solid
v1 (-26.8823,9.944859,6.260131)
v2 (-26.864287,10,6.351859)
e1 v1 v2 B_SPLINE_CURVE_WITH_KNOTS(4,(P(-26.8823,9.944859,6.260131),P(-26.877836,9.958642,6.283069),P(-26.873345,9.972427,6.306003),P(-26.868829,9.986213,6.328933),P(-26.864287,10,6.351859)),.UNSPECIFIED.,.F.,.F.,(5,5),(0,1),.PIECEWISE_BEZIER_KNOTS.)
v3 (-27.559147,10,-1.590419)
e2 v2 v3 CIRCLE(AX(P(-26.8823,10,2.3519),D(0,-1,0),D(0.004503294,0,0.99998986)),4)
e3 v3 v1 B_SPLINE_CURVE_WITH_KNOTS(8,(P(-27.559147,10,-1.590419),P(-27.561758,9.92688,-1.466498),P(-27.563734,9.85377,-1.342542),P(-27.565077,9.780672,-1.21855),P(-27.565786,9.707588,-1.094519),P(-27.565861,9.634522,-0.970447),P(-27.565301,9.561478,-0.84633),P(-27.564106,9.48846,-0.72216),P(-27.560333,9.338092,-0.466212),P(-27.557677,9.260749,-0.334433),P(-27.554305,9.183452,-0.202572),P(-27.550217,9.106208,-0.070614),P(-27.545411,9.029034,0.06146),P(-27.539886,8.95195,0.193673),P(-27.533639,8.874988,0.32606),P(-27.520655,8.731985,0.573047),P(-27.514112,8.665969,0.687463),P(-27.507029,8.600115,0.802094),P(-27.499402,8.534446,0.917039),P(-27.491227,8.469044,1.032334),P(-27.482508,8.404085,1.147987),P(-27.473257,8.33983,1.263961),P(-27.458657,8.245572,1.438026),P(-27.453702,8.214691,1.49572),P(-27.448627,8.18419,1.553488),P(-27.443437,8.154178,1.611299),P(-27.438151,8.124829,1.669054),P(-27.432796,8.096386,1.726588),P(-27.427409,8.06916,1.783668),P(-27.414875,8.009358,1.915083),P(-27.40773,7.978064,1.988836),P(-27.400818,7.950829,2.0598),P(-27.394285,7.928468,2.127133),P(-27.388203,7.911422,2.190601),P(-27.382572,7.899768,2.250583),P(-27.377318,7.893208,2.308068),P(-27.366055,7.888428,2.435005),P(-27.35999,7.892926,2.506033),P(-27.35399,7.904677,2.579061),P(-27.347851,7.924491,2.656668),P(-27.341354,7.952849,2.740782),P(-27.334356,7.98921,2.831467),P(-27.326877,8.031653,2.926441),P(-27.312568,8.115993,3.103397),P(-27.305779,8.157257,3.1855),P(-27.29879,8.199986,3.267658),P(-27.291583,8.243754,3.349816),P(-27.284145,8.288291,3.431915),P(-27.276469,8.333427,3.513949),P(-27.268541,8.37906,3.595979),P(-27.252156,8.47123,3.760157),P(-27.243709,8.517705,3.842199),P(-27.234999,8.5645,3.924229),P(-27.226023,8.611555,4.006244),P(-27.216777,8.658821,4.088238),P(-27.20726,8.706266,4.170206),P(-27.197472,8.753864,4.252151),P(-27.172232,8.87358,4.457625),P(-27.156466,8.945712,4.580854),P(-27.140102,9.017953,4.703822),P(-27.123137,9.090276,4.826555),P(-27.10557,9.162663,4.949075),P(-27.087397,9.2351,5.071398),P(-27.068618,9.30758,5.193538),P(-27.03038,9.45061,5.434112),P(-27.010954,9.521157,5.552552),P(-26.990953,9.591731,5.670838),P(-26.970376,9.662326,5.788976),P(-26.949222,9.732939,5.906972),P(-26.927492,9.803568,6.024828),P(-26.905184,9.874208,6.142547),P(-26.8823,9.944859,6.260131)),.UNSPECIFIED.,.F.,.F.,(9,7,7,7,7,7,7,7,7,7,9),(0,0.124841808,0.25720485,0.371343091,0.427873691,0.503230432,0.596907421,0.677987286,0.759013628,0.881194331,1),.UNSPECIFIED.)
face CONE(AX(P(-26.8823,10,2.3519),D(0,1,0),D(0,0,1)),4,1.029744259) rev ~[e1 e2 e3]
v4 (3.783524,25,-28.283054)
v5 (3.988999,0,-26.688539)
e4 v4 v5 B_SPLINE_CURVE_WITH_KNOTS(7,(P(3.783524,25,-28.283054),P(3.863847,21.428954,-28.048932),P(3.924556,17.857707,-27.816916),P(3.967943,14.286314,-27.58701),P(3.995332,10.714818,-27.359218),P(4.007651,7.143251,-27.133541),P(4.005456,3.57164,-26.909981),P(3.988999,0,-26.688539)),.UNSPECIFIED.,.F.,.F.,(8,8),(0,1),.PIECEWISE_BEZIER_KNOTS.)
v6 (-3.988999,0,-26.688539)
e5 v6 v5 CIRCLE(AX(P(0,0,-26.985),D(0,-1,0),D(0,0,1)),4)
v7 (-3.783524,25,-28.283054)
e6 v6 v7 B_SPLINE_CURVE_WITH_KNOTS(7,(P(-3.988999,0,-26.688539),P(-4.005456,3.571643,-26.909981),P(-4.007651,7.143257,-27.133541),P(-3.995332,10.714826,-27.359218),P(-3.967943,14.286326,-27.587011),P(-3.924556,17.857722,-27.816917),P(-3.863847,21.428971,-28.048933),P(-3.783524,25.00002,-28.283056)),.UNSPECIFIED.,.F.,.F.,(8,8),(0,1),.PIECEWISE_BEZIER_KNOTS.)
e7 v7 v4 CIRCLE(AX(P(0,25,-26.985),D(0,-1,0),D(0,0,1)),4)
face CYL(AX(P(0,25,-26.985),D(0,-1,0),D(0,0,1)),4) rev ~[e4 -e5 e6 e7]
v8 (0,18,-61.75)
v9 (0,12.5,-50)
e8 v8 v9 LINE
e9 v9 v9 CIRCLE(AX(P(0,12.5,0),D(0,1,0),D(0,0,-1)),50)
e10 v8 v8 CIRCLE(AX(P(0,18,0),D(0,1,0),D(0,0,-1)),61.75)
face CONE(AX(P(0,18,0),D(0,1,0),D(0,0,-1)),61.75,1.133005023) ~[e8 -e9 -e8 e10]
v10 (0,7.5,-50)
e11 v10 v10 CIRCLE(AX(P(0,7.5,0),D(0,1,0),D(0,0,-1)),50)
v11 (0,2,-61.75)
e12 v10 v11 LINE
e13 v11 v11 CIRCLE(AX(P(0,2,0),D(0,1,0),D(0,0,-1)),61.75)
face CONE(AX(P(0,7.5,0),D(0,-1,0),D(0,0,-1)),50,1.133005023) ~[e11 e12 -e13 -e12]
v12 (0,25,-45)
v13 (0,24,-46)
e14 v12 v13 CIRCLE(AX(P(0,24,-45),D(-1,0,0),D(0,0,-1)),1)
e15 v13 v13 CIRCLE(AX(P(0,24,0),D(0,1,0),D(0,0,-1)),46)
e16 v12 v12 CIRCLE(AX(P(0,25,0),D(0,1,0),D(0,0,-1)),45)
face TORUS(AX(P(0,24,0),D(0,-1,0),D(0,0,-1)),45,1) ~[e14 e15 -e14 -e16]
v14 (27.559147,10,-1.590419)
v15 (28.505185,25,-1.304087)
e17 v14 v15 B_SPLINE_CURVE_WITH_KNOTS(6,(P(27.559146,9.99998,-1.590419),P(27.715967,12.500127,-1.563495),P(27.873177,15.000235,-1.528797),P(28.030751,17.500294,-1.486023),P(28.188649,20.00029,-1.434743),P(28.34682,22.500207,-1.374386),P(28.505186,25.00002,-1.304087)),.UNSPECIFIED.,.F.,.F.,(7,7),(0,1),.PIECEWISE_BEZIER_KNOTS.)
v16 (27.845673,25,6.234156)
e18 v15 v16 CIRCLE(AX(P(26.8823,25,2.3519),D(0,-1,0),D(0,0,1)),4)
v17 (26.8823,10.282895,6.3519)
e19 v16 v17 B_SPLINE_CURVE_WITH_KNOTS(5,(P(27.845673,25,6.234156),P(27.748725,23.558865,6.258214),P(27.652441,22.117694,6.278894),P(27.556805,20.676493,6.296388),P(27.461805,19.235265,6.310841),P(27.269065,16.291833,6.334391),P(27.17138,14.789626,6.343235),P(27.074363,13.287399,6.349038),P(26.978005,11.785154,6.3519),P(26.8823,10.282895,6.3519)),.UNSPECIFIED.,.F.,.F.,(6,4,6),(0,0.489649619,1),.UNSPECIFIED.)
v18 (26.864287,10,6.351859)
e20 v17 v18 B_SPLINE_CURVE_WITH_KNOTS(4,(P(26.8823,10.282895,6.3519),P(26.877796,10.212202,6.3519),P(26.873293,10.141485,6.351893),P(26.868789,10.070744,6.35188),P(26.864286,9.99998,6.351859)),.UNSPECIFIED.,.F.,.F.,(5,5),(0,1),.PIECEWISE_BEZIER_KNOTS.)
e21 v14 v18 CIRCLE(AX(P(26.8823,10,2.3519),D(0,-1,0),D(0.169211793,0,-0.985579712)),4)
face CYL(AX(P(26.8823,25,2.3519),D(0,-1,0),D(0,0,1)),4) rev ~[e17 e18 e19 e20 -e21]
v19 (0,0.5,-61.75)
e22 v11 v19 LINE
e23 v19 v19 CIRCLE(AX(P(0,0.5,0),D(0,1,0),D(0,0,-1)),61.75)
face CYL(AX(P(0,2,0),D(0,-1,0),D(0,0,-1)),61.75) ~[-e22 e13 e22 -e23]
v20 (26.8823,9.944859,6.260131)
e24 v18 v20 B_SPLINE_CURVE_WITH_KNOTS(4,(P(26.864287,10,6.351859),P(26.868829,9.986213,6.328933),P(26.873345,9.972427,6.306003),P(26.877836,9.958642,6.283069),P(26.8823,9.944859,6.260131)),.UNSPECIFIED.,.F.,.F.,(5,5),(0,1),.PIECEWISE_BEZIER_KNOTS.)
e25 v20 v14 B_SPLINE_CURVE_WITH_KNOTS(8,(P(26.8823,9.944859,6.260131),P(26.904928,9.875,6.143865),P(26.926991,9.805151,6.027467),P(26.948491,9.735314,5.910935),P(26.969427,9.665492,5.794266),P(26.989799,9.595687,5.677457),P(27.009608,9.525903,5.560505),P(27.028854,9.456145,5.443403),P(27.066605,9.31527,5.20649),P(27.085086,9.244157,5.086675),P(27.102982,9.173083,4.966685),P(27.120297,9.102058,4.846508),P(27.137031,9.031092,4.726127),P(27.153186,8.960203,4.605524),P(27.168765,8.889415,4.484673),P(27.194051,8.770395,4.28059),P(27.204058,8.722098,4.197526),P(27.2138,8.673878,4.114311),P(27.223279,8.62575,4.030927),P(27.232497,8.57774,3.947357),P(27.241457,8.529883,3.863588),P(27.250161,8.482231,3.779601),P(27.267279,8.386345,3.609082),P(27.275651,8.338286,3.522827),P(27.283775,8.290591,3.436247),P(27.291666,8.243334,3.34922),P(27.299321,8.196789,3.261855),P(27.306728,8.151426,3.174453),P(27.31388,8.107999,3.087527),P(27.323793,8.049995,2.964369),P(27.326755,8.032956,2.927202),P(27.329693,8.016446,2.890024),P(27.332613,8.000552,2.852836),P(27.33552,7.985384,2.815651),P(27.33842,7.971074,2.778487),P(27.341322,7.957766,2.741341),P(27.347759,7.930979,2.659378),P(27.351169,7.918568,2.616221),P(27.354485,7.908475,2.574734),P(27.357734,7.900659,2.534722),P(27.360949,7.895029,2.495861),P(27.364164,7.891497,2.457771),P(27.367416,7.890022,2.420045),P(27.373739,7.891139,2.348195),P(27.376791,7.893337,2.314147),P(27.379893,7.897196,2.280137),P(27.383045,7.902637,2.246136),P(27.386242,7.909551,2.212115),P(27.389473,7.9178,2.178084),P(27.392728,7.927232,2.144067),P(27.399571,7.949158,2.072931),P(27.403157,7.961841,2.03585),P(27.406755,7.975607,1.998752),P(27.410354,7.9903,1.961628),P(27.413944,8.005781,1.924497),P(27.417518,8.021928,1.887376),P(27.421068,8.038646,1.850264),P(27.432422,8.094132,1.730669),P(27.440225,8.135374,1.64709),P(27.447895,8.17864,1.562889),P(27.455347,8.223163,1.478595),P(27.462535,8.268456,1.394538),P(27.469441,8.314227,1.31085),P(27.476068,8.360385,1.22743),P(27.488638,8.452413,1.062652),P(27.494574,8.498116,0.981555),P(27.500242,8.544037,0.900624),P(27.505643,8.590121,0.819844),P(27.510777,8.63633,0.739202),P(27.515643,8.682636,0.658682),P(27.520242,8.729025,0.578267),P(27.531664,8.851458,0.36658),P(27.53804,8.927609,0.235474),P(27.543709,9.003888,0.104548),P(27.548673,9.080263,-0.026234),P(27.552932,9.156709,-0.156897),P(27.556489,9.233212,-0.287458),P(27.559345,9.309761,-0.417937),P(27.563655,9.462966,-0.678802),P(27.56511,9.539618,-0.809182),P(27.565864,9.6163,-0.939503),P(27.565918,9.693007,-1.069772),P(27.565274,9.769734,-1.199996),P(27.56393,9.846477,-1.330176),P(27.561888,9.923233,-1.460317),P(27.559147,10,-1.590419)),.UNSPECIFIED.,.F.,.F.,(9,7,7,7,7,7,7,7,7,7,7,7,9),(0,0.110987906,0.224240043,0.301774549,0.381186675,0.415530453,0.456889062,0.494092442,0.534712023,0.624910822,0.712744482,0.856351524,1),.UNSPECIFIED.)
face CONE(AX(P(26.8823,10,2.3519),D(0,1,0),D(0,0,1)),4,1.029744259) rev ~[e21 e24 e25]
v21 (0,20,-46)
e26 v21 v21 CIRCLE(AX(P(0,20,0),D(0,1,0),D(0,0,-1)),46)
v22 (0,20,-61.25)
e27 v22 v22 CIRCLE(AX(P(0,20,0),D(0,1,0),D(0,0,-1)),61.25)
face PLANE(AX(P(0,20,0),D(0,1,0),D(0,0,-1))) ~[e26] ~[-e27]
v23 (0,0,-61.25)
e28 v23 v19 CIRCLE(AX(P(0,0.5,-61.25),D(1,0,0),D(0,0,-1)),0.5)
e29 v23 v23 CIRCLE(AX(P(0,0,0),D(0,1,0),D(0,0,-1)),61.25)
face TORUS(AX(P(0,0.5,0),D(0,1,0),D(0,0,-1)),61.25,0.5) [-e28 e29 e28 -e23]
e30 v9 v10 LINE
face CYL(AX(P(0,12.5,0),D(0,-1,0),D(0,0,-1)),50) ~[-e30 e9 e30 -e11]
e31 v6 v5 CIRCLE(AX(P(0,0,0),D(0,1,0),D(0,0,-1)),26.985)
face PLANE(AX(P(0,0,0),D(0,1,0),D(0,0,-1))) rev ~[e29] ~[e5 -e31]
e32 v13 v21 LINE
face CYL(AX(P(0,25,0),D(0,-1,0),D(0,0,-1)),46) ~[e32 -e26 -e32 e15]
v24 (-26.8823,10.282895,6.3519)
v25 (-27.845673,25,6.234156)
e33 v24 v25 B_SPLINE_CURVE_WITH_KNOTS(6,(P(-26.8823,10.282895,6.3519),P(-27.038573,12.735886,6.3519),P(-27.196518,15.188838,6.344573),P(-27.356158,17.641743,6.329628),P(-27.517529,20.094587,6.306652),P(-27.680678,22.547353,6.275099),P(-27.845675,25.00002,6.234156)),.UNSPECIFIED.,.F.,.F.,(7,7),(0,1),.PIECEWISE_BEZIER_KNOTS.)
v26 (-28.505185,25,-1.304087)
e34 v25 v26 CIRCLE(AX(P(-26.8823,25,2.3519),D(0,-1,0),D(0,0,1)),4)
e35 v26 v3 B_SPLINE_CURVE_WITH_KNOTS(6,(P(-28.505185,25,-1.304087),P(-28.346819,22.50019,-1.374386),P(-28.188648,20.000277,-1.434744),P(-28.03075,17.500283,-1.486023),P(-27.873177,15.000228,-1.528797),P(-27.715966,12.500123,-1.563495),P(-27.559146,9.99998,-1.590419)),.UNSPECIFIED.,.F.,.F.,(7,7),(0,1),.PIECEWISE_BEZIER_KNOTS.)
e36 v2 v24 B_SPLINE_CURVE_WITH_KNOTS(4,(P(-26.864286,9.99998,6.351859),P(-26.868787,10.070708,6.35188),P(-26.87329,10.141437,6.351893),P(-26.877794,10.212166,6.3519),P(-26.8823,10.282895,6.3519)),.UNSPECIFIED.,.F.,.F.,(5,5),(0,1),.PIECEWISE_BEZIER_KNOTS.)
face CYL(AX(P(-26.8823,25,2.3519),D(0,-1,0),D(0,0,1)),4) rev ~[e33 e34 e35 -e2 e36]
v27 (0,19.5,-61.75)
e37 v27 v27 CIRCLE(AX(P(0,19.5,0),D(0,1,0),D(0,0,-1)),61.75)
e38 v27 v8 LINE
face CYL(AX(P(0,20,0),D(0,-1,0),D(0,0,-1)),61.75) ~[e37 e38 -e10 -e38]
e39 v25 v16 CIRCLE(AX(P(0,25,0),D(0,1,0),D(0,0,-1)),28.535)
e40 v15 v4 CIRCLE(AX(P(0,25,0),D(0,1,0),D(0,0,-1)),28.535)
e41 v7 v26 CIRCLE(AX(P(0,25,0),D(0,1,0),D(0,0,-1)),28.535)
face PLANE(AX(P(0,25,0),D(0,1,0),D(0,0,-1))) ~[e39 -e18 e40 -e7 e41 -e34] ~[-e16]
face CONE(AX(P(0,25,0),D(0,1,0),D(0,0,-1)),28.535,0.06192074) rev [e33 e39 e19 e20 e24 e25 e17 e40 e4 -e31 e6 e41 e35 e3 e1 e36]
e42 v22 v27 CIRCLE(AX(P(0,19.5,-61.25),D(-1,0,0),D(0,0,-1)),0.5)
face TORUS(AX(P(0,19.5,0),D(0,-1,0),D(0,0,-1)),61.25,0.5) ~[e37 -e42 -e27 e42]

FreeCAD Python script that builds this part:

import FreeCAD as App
import Part
import Sketcher
from FreeCAD import Vector


def edges_at(feature, points):
    """Names of the edges that pass closest to the given points."""
    edges = feature.Shape.Edges
    near = lambda p: min(range(len(edges)), key=lambda i: edges[i].distToShape(Part.Vertex(*p))[0])
    return sorted({f"Edge{near(p) + 1}" for p in points})


def add_polygon(sketch, points):
    """Adds a closed chain of lines whose ends are joined by coincident constraints."""
    first, n = sketch.GeometryCount, len(points)
    for a, b in zip(points, points[1:] + points[:1]):
        sketch.addGeometry(Part.LineSegment(App.Vector(*a, 0), App.Vector(*b, 0)), False)
    for i in range(n):
        sketch.addConstraint(Sketcher.Constraint("Coincident", first + i, 2, first + (i + 1) % n, 1))

doc = App.newDocument("Part")
body = doc.addObject("PartDesign::Body", "Body")

# Sketch on YZ plane
sketch1 = body.newObject("Sketcher::SketchObject", "Sketch")
sketch1.AttachmentSupport = (doc.getObject("YZ_Plane"), [""])
sketch1.MapMode = "FlatFace"
add_polygon(sketch1, [(25, -46), (25, -28.5), (0, -27), (0, -61.8), (2, -61.8), (7.5, -50), (12.5, -50), (18, -61.8), (20, -61.8), (20, -46)])  # lines 0-9
sketch1.addConstraint(Sketcher.Constraint("Vertical", 0))
sketch1.addConstraint(Sketcher.Constraint("Vertical", 2))
sketch1.addConstraint(Sketcher.Constraint("Horizontal", 3))
sketch1.addConstraint(Sketcher.Constraint("Horizontal", 5))
sketch1.addConstraint(Sketcher.Constraint("Horizontal", 7))
sketch1.addConstraint(Sketcher.Constraint("Vertical", 8))
sketch1.addConstraint(Sketcher.Constraint("Horizontal", 9))
sketch1.addConstraint(Sketcher.Constraint("PointOnObject", 1, 2, -2))
sketch1.addConstraint(Sketcher.Constraint("Horizontal", 3, 2, 6, 2))
sketch1.addConstraint(Sketcher.Constraint("Equal", 3, 7))
sketch1.addConstraint(Sketcher.Constraint("Equal", 5, 9))
sketch1.addConstraint(Sketcher.Constraint("Equal", 4, 6))
sketch1.addConstraint(Sketcher.Constraint("DistanceX", 3, 1, 3, 2, 2.0))
sketch1.addConstraint(Sketcher.Constraint("DistanceX", 5, 1, 5, 2, 5.0))
sketch1.addConstraint(Sketcher.Constraint("DistanceX", -1, 1, 0, 2, 25.0))
sketch1.addConstraint(Sketcher.Constraint("DistanceY", 4, 2, -1, 1, 50.0))
sketch1.addConstraint(Sketcher.Constraint("DistanceY", 0, 1, 0, 2, 17.465))
sketch1.addConstraint(Sketcher.Constraint("DistanceY", 2, 2, -1, 1, 61.75))
sketch1.addConstraint(Sketcher.Constraint("DistanceY", 0, 2, -1, 1, 28.535))
sketch1.addConstraint(Sketcher.Constraint("DistanceY", 1, 2, -1, 1, 26.985))
revolution = body.newObject("PartDesign::Revolution", "Revolution")
revolution.Profile = sketch1
revolution.ReferenceAxis = (sketch1, ["H_Axis"])
revolution.Angle = 360
doc.recompute()

fillet = body.newObject("PartDesign::Fillet", "Fillet")
fillet.Base = (revolution, edges_at(revolution, [(0, 25, 46)]))
fillet.Radius = 1
doc.recompute()

fillet2 = body.newObject("PartDesign::Fillet", "Fillet001")
fillet2.Base = (fillet, edges_at(fillet, [(0, 20, 61.75), (0, 0, 61.75)]))
fillet2.Radius = 0.5

# Sketch on XZ plane
sketch2 = body.newObject("Sketcher::SketchObject", "Sketch001")
sketch2.AttachmentSupport = (doc.getObject("XZ_Plane"), [""])
sketch2.MapMode = "FlatFace"
sketch2.AttachmentOffset = App.Placement(Vector(0, 0, -25), App.Rotation())
sketch2.addGeometry(Part.Circle(Vector(0, -27, 0), Vector(0, 0, 1), 4), False)
sketch2.addConstraint(Sketcher.Constraint("PointOnObject", 0, 3, -2))
sketch2.addConstraint(Sketcher.Constraint("Diameter", 0, 8.0))
sketch2.addConstraint(Sketcher.Constraint("DistanceY", 0, 3, -1, 1, 26.985))
doc.recompute()
hole = body.newObject("PartDesign::Hole", "Hole")
hole.Profile = sketch2
hole.ThreadType = "None"
hole.Diameter = 8
hole.DepthType = "ThroughAll"
hole.Reversed = True

# Sketch on XZ plane
sketch3 = body.newObject("Sketcher::SketchObject", "Sketch002")
sketch3.AttachmentSupport = (doc.getObject("XZ_Plane"), [""])
sketch3.MapMode = "FlatFace"
sketch3.AttachmentOffset = App.Placement(Vector(0, 0, -25), App.Rotation())
sketch3.addGeometry(Part.Circle(Vector(26.9, 2.4, 0), Vector(0, 0, 1), 4), False)
sketch3.addGeometry(Part.Circle(Vector(-26.9, 2.4, 0), Vector(0, 0, 1), 4), False)
sketch3.addConstraint(Sketcher.Constraint("Equal", 0, 1))
sketch3.addConstraint(Sketcher.Constraint("Symmetric", 0, 3, 1, 3, -2))
sketch3.addConstraint(Sketcher.Constraint("Diameter", 0, 8.0))
sketch3.addConstraint(Sketcher.Constraint("DistanceY", -1, 1, 0, 3, 2.352))
sketch3.addConstraint(Sketcher.Constraint("DistanceX", -1, 1, 0, 3, 26.8823))
doc.recompute()
hole2 = body.newObject("PartDesign::Hole", "Hole001")
hole2.Profile = sketch3
hole2.ThreadType = "None"
hole2.Diameter = 8
hole2.DepthType = "Dimension"
hole2.Depth = 15
hole2.DrillPoint = "Angled"
hole2.DrillPointAngle = 118
hole2.Reversed = True

doc.recompute()
